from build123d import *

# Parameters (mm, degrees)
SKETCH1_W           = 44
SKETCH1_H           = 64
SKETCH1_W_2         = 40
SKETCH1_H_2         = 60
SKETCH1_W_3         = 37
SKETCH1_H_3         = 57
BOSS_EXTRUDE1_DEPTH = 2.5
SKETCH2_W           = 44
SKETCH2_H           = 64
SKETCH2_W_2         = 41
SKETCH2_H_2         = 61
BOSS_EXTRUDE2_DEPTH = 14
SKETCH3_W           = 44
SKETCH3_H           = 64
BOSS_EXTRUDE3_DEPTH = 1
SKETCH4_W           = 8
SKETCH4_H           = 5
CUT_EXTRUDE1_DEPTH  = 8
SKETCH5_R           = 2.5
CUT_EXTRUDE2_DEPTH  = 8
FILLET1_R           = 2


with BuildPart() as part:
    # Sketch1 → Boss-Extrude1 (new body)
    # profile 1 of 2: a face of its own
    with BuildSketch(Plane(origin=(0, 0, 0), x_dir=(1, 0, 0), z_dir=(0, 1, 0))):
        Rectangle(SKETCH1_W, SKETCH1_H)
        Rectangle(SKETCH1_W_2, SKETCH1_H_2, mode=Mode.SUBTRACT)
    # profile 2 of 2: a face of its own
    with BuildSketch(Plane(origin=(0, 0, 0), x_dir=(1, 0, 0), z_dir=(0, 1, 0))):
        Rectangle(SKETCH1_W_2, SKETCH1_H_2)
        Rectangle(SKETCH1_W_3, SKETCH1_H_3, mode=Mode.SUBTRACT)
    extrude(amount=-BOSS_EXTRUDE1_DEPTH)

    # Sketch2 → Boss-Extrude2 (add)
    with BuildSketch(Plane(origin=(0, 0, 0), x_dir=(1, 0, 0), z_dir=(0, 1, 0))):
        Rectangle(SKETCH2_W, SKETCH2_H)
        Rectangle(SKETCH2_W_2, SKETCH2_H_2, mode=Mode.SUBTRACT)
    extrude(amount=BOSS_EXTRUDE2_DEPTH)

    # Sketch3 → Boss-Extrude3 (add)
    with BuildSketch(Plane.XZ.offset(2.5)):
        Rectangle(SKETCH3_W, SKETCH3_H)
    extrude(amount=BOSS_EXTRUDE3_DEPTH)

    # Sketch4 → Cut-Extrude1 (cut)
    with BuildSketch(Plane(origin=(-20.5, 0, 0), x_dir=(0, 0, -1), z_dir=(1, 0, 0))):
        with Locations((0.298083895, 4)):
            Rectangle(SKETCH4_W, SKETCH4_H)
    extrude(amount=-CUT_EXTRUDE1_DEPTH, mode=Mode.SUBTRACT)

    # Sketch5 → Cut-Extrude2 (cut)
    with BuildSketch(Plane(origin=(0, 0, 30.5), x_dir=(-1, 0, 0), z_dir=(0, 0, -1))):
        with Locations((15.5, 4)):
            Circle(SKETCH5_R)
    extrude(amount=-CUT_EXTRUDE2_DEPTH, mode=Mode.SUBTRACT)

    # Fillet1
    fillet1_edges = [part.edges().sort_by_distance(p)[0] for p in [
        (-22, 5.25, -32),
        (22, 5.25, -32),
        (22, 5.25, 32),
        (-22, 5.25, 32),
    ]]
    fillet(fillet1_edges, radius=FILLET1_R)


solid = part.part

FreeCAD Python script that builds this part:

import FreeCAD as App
import Part
import Sketcher
from FreeCAD import Vector


def edges_at(feature, points):
    """Names of the edges that pass closest to the given points."""
    edges = feature.Shape.Edges
    near = lambda p: min(range(len(edges)), key=lambda i: edges[i].distToShape(Part.Vertex(*p))[0])
    return sorted({f"Edge{near(p) + 1}" for p in points})


def add_polygon(sketch, points):
    """Adds a closed chain of lines whose ends are joined by coincident constraints."""
    first, n = sketch.GeometryCount, len(points)
    for a, b in zip(points, points[1:] + points[:1]):
        sketch.addGeometry(Part.LineSegment(App.Vector(*a, 0), App.Vector(*b, 0)), False)
    for i in range(n):
        sketch.addConstraint(Sketcher.Constraint("Coincident", first + i, 2, first + (i + 1) % n, 1))

doc = App.newDocument("Part")
params = doc.addObject("Spreadsheet::Sheet", "Params")
for row, (alias, value) in enumerate([
    ("sketch1_width", "44 mm"),
    ("sketch1_width2", "37 mm"),
    ("sketch1_height", "64 mm"),
    ("sketch1_height2", "57 mm"),
    ("pad1_length", "2.5 mm"),
    ("sketch2_width", "44 mm"),
    ("sketch2_width2", "41 mm"),
    ("sketch2_height", "64 mm"),
    ("sketch2_height2", "61 mm"),
    ("pad2_length", "14 mm"),
    ("sketch3_width", "44 mm"),
    ("sketch3_height", "64 mm"),
    ("pad3_length", "1 mm"),
    ("sketch4_width", "5 mm"),
    ("sketch4_height", "8 mm"),
    ("pocket1_length", "8 mm"),
    ("sketch5_diameter", "5 mm"),
    ("pocket2_length", "8 mm"),
    ("fillet_radius", "2 mm"),
], start=1):
    params.set(f"A{row}", alias)
    params.set(f"B{row}", "=" + value)
    params.setAlias(f"B{row}", alias)

body = doc.addObject("PartDesign::Body", "Body")

# Sketch on XZ plane
sketch1 = doc.addObject("Sketcher::SketchObject", "Sketch")
body.addObject(sketch1)
sketch1.AttachmentSupport = (doc.XZ_Plane, [""])
sketch1.MapMode = "FlatFace"
add_polygon(sketch1, [(-22, -32), (-22, 32), (22, 32), (22, -32)])  # lines 0-3
add_polygon(sketch1, [(18, 28), (-18, 28), (-18, -28), (18, -28)])  # lines 4-7
sketch1.addConstraint([
    Sketcher.Constraint("Vertical", 0),
    Sketcher.Constraint("Horizontal", 1),
    Sketcher.Constraint("Vertical", 2),
    Sketcher.Constraint("Horizontal", 3),
    Sketcher.Constraint("Horizontal", 4),
    Sketcher.Constraint("Vertical", 5),
    Sketcher.Constraint("Horizontal", 6),
    Sketcher.Constraint("Vertical", 7),
    Sketcher.Constraint("Symmetric", 0, 2, 2, 2, -1, 1),
    Sketcher.Constraint("Symmetric", 4, 2, 6, 2, -1, 1),
    Sketcher.Constraint("DistanceX", 1, 1, 1, 2, 44.0),
    Sketcher.Constraint("DistanceX", 4, 2, 4, 1, 37.0),
    Sketcher.Constraint("DistanceY", 0, 1, 0, 2, 64.0),
    Sketcher.Constraint("DistanceY", 5, 2, 5, 1, 57.0),
])
sketch1.setExpression("Constraints[18]", "Params.sketch1_width")
sketch1.setExpression("Constraints[19]", "Params.sketch1_width2")
sketch1.setExpression("Constraints[20]", "Params.sketch1_height")
sketch1.setExpression("Constraints[21]", "Params.sketch1_height2")
pad1 = doc.addObject("PartDesign::Pad", "Pad")
body.addObject(pad1)
pad1.Profile = sketch1
pad1.setExpression("Length", "Params.pad1_length")

# Sketch on XZ plane
sketch2 = doc.addObject("Sketcher::SketchObject", "Sketch001")
body.addObject(sketch2)
sketch2.AttachmentSupport = (doc.XZ_Plane, [""])
sketch2.MapMode = "FlatFace"
add_polygon(sketch2, [(-22, -32), (-22, 32), (22, 32), (22, -32)])  # lines 0-3
add_polygon(sketch2, [(20, 30), (-20, 30), (-20, -30), (20, -30)])  # lines 4-7
sketch2.addConstraint([
    Sketcher.Constraint("Vertical", 0),
    Sketcher.Constraint("Horizontal", 1),
    Sketcher.Constraint("Vertical", 2),
    Sketcher.Constraint("Horizontal", 3),
    Sketcher.Constraint("Horizontal", 4),
    Sketcher.Constraint("Vertical", 5),
    Sketcher.Constraint("Horizontal", 6),
    Sketcher.Constraint("Vertical", 7),
    Sketcher.Constraint("Symmetric", 0, 2, 2, 2, -1, 1),
    Sketcher.Constraint("Symmetric", 4, 2, 6, 2, -1, 1),
    Sketcher.Constraint("DistanceX", 1, 1, 1, 2, 44.0),
    Sketcher.Constraint("DistanceX", 4, 2, 4, 1, 41.0),
    Sketcher.Constraint("DistanceY", 0, 1, 0, 2, 64.0),
    Sketcher.Constraint("DistanceY", 5, 2, 5, 1, 61.0),
])
sketch2.setExpression("Constraints[18]", "Params.sketch2_width")
sketch2.setExpression("Constraints[19]", "Params.sketch2_width2")
sketch2.setExpression("Constraints[20]", "Params.sketch2_height")
sketch2.setExpression("Constraints[21]", "Params.sketch2_height2")
pad2 = doc.addObject("PartDesign::Pad", "Pad001")
body.addObject(pad2)
pad2.Profile = sketch2
pad2.setExpression("Length", "Params.pad2_length")
pad2.Reversed = True

# Sketch on XZ plane
sketch3 = doc.addObject("Sketcher::SketchObject", "Sketch002")
body.addObject(sketch3)
sketch3.AttachmentSupport = (doc.XZ_Plane, [""])
sketch3.MapMode = "FlatFace"
sketch3.AttachmentOffset = App.Placement(Vector(0, 0, 2.5), App.Rotation())
add_polygon(sketch3, [(-22, 32), (-22, -32), (22, -32), (22, 32)])  # lines 0-3
sketch3.addConstraint([
    Sketcher.Constraint("Vertical", 0),
    Sketcher.Constraint("Horizontal", 1),
    Sketcher.Constraint("Vertical", 2),
    Sketcher.Constraint("Horizontal", 3),
    Sketcher.Constraint("Symmetric", 0, 2, 2, 2, -1, 1),
    Sketcher.Constraint("DistanceX", 1, 1, 1, 2, 44.0),
    Sketcher.Constraint("DistanceY", 0, 2, 0, 1, 64.0),
])
sketch3.setExpression("Constraints[9]", "Params.sketch3_width")
sketch3.setExpression("Constraints[10]", "Params.sketch3_height")
pad3 = doc.addObject("PartDesign::Pad", "Pad002")
body.addObject(pad3)
pad3.Profile = sketch3
pad3.setExpression("Length", "Params.pad3_length")

# Sketch on YZ plane
sketch4 = doc.addObject("Sketcher::SketchObject", "Sketch003")
body.addObject(sketch4)
sketch4.AttachmentSupport = (doc.YZ_Plane, [""])
sketch4.MapMode = "FlatFace"
sketch4.AttachmentOffset = App.Placement(Vector(0, 0, -20.5), App.Rotation())
add_polygon(sketch4, [(6, 4), (2, 4), (2, -4), (6, -4)])  # lines 0-3
sketch4.addConstraint([
    Sketcher.Constraint("Horizontal", 0),
    Sketcher.Constraint("Vertical", 1),
    Sketcher.Constraint("Horizontal", 2),
    Sketcher.Constraint("Vertical", 3),
    Sketcher.Constraint("DistanceX", 0, 2, 0, 1, 5.0),
    Sketcher.Constraint("DistanceY", 1, 2, 1, 1, 8.0),
    Sketcher.Constraint("DistanceX", -1, 1, 0, 2, 1.5),
    Sketcher.Constraint("DistanceY", -1, 1, 0, 2, 3.701916),
])
sketch4.setExpression("Constraints[8]", "Params.sketch4_width")
sketch4.setExpression("Constraints[9]", "Params.sketch4_height")
pocket1 = doc.addObject("PartDesign::Pocket", "Pocket")
body.addObject(pocket1)
pocket1.Profile = sketch4
pocket1.setExpression("Length", "Params.pocket1_length")

# Sketch on XY plane
sketch5 = doc.addObject("Sketcher::SketchObject", "Sketch004")
body.addObject(sketch5)
sketch5.AttachmentSupport = (doc.XY_Plane, [""])
sketch5.MapMode = "FlatFace"
sketch5.AttachmentOffset = App.Placement(Vector(0, 0, 30.5), App.Rotation())
sketch5.addGeometry(Part.Circle(Vector(-15.5, 4, 0), Vector(0, 0, 1), 2.5), False)
sketch5.addConstraint([
    Sketcher.Constraint("Diameter", 0, 5.0),
    Sketcher.Constraint("DistanceY", -1, 1, 0, 3, 4.0),
    Sketcher.Constraint("DistanceX", 0, 3, -1, 1, 15.5),
])
sketch5.setExpression("Constraints[0]", "Params.sketch5_diameter")
pocket2 = doc.addObject("PartDesign::Pocket", "Pocket001")
body.addObject(pocket2)
pocket2.Profile = sketch5
pocket2.setExpression("Length", "Params.pocket2_length")
pocket2.Reversed = True
doc.recompute()

fillet = doc.addObject("PartDesign::Fillet", "Fillet")
body.addObject(fillet)
fillet.Base = (pocket2, edges_at(pocket2, [
    (-22, 5.25, -32),
    (22, 5.25, -32),
    (22, 5.25, 32),
    (-22, 5.25, 32),
]))
fillet.setExpression("Radius", "Params.fillet_radius")

doc.recompute()
